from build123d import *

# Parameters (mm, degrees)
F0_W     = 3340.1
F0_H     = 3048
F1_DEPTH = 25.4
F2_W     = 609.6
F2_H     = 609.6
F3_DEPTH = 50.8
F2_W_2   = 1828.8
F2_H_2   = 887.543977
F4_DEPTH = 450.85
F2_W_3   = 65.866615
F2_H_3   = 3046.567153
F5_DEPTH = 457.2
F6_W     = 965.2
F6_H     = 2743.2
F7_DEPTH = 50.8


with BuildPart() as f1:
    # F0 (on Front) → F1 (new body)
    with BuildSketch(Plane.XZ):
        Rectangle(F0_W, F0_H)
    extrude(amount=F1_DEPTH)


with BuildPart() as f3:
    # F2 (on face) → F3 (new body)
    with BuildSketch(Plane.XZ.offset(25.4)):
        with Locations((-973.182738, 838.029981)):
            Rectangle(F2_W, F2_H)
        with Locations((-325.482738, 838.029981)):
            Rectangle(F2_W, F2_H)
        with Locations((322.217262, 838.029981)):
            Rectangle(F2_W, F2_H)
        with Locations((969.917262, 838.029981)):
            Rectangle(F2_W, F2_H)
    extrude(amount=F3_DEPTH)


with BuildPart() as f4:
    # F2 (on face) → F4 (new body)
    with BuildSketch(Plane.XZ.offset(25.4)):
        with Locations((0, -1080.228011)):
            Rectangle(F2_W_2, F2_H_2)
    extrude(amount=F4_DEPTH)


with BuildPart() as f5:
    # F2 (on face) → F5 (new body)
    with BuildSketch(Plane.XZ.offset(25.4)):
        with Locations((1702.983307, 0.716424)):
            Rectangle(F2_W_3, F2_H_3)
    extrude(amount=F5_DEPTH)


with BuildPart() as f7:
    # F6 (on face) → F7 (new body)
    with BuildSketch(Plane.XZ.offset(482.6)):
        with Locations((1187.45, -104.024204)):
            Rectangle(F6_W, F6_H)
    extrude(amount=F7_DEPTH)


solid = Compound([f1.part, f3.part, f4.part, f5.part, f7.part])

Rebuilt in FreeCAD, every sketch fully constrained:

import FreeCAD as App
import Part
import Sketcher
from FreeCAD import Vector
Q = App.Units.Quantity


def add_polygon(sketch, points):
    """Adds a closed chain of lines whose ends are joined by coincident constraints."""
    first, n = sketch.GeometryCount, len(points)
    for a, b in zip(points, points[1:] + points[:1]):
        sketch.addGeometry(Part.LineSegment(App.Vector(*a, 0), App.Vector(*b, 0)), False)
    for i in range(n):
        sketch.addConstraint(Sketcher.Constraint("Coincident", first + i, 2, first + (i + 1) % n, 1))

doc = App.newDocument("Part")
body = doc.addObject("PartDesign::Body", "Body")

sketch1 = doc.addObject("Sketcher::SketchObject", "Sketch")
body.addObject(sketch1)
sketch1.AttachmentSupport = (doc.XZ_Plane, [""])
sketch1.MapMode = "FlatFace"
add_polygon(sketch1, [(-1670, 1524), (-1670, -1524), (1670, -1524), (1670, 1524)])
sketch1.addConstraint(Sketcher.Constraint("Vertical", 0))
sketch1.addConstraint(Sketcher.Constraint("Horizontal", 1))
sketch1.addConstraint(Sketcher.Constraint("Vertical", 2))
sketch1.addConstraint(Sketcher.Constraint("Horizontal", 3))
sketch1.addConstraint(Sketcher.Constraint("Symmetric", 0, 2, 2, 2, -1, 1))
sketch1.addConstraint(Sketcher.Constraint("DistanceY", 0, 2, 0, 1, Q("120 in")))
sketch1.addConstraint(Sketcher.Constraint("DistanceX", 1, 1, 1, 2, Q("131.5 in")))
pad1 = doc.addObject("PartDesign::Pad", "Pad")
body.addObject(pad1)
pad1.Profile = sketch1
pad1.Length = Q("1 in")
body2 = doc.addObject("PartDesign::Body", "Body001")
body2.AllowCompound = True

sketch2 = doc.addObject("Sketcher::SketchObject", "Sketch001")
body2.addObject(sketch2)
sketch2.AttachmentSupport = (doc.getObject("XZ_Plane001"), [""])
sketch2.MapMode = "FlatFace"
sketch2.AttachmentOffset = App.Placement(Vector(0, 0, 1 * 25.4), App.Rotation())
add_polygon(sketch2, [(-1278, 1143), (-1278, 533), (-668, 533), (-668, 1143)])
add_polygon(sketch2, [(-630, 1143), (-630, 533), (-21, 533), (-21, 1143)])
add_polygon(sketch2, [(17, 1143), (17, 533), (627, 533), (627, 1143)])
add_polygon(sketch2, [(665, 1143), (665, 533), (1275, 533), (1275, 1143)])
sketch2.addConstraint(Sketcher.Constraint("Vertical", 0))
sketch2.addConstraint(Sketcher.Constraint("Horizontal", 1))
sketch2.addConstraint(Sketcher.Constraint("Vertical", 2))
sketch2.addConstraint(Sketcher.Constraint("Horizontal", 3))
sketch2.addConstraint(Sketcher.Constraint("Vertical", 4))
sketch2.addConstraint(Sketcher.Constraint("Horizontal", 5))
sketch2.addConstraint(Sketcher.Constraint("Vertical", 6))
sketch2.addConstraint(Sketcher.Constraint("Horizontal", 7))
sketch2.addConstraint(Sketcher.Constraint("Vertical", 8))
sketch2.addConstraint(Sketcher.Constraint("Horizontal", 9))
sketch2.addConstraint(Sketcher.Constraint("Vertical", 10))
sketch2.addConstraint(Sketcher.Constraint("Horizontal", 11))
sketch2.addConstraint(Sketcher.Constraint("Vertical", 12))
sketch2.addConstraint(Sketcher.Constraint("Horizontal", 13))
sketch2.addConstraint(Sketcher.Constraint("Vertical", 14))
sketch2.addConstraint(Sketcher.Constraint("Horizontal", 15))
sketch2.addConstraint(Sketcher.Constraint("Horizontal", 1, 2, 4, 2))
sketch2.addConstraint(Sketcher.Constraint("Horizontal", 3, 2, 6, 2))
sketch2.addConstraint(Sketcher.Constraint("Horizontal", 5, 2, 8, 2))
sketch2.addConstraint(Sketcher.Constraint("Horizontal", 7, 2, 10, 2))
sketch2.addConstraint(Sketcher.Constraint("Horizontal", 9, 2, 12, 2))
sketch2.addConstraint(Sketcher.Constraint("Horizontal", 11, 2, 14, 2))
sketch2.addConstraint(Sketcher.Constraint("Equal", 3, 5))
sketch2.addConstraint(Sketcher.Constraint("Equal", 7, 9))
sketch2.addConstraint(Sketcher.Constraint("Equal", 11, 13))
sketch2.addConstraint(Sketcher.Constraint("Equal", 15, 0))
sketch2.addConstraint(Sketcher.Constraint("DistanceX", 1, 1, 1, 2, Q("24 in")))
sketch2.addConstraint(Sketcher.Constraint("DistanceX", 1, 2, 8, 2, Q("27 in")))
sketch2.addConstraint(Sketcher.Constraint("DistanceX", 5, 2, 12, 2, Q("27 in")))
sketch2.addConstraint(Sketcher.Constraint("DistanceX", 1, 2, 4, 2, Q("1.5 in")))
sketch2.addConstraint(Sketcher.Constraint("DistanceX", 0, 2, -1, 1, 1277.982738))
sketch2.addConstraint(Sketcher.Constraint("DistanceY", -1, 1, 0, 2, 533.229981))
pad2 = doc.addObject("PartDesign::Pad", "Pad001")
body2.addObject(pad2)
pad2.Profile = sketch2
pad2.Length = Q("2 in")
body3 = doc.addObject("PartDesign::Body", "Body002")

sketch3 = doc.addObject("Sketcher::SketchObject", "Sketch002")
body3.addObject(sketch3)
sketch3.AttachmentSupport = (doc.getObject("XZ_Plane002"), [""])
sketch3.MapMode = "FlatFace"
sketch3.AttachmentOffset = App.Placement(Vector(0, 0, 1 * 25.4), App.Rotation())
add_polygon(sketch3, [(-914, -636), (-914, -1524), (914, -1524), (914, -636)])
sketch3.addConstraint(Sketcher.Constraint("Vertical", 0))
sketch3.addConstraint(Sketcher.Constraint("Horizontal", 1))
sketch3.addConstraint(Sketcher.Constraint("Vertical", 2))
sketch3.addConstraint(Sketcher.Constraint("Horizontal", 3))
sketch3.addConstraint(Sketcher.Constraint("DistanceX", 1, 1, 1, 2, Q("72 in")))
sketch3.addConstraint(Sketcher.Constraint("DistanceX", 0, 2, -1, 1, Q("36 in")))
sketch3.addConstraint(Sketcher.Constraint("DistanceY", 0, 2, -1, 1, Q("60 in")))
sketch3.addConstraint(Sketcher.Constraint("DistanceY", 0, 2, 0, 1, 887.543977))
pad3 = doc.addObject("PartDesign::Pad", "Pad002")
body3.addObject(pad3)
pad3.Profile = sketch3
pad3.Length = Q("17.75 in")
body4 = doc.addObject("PartDesign::Body", "Body003")

sketch4 = doc.addObject("Sketcher::SketchObject", "Sketch003")
body4.addObject(sketch4)
sketch4.AttachmentSupport = (doc.getObject("XZ_Plane003"), [""])
sketch4.MapMode = "FlatFace"
sketch4.AttachmentOffset = App.Placement(Vector(0, 0, 1 * 25.4), App.Rotation())
add_polygon(sketch4, [(1670, 1524), (1670, -1523), (1736, -1523), (1736, 1524)])
sketch4.addConstraint(Sketcher.Constraint("Vertical", 0))
sketch4.addConstraint(Sketcher.Constraint("Horizontal", 1))
sketch4.addConstraint(Sketcher.Constraint("Vertical", 2))
sketch4.addConstraint(Sketcher.Constraint("Horizontal", 3))
sketch4.addConstraint(Sketcher.Constraint("DistanceY", -1, 1, 2, 2, Q("60 in")))
sketch4.addConstraint(Sketcher.Constraint("DistanceX", -1, 1, 0, 2, Q("65.75 in")))
sketch4.addConstraint(Sketcher.Constraint("DistanceX", 1, 1, 1, 2, 65.866615))
sketch4.addConstraint(Sketcher.Constraint("DistanceY", 0, 2, 0, 1, 3046.567153))
pad4 = doc.addObject("PartDesign::Pad", "Pad003")
body4.addObject(pad4)
pad4.Profile = sketch4
pad4.Length = Q("18 in")
body5 = doc.addObject("PartDesign::Body", "Body004")

sketch5 = doc.addObject("Sketcher::SketchObject", "Sketch004")
body5.addObject(sketch5)
sketch5.AttachmentSupport = (doc.getObject("XZ_Plane004"), [""])
sketch5.MapMode = "FlatFace"
sketch5.AttachmentOffset = App.Placement(Vector(0, 0, 19 * 25.4), App.Rotation())
add_polygon(sketch5, [(705, 1268), (705, -1476), (1670, -1476), (1670, 1268)])
sketch5.addConstraint(Sketcher.Constraint("Vertical", 0))
sketch5.addConstraint(Sketcher.Constraint("Horizontal", 1))
sketch5.addConstraint(Sketcher.Constraint("Vertical", 2))
sketch5.addConstraint(Sketcher.Constraint("Horizontal", 3))
sketch5.addConstraint(Sketcher.Constraint("DistanceX", 1, 1, 1, 2, Q("38 in")))
sketch5.addConstraint(Sketcher.Constraint("DistanceY", 0, 2, 0, 1, Q("108 in")))
sketch5.addConstraint(Sketcher.Constraint("DistanceX", -1, 1, 0, 2, Q("27.75 in")))
sketch5.addConstraint(Sketcher.Constraint("DistanceY", 0, 2, -1, 1, 1475.624204))
pad5 = doc.addObject("PartDesign::Pad", "Pad004")
body5.addObject(pad5)
pad5.Profile = sketch5
pad5.Length = Q("2 in")

doc.recompute()
